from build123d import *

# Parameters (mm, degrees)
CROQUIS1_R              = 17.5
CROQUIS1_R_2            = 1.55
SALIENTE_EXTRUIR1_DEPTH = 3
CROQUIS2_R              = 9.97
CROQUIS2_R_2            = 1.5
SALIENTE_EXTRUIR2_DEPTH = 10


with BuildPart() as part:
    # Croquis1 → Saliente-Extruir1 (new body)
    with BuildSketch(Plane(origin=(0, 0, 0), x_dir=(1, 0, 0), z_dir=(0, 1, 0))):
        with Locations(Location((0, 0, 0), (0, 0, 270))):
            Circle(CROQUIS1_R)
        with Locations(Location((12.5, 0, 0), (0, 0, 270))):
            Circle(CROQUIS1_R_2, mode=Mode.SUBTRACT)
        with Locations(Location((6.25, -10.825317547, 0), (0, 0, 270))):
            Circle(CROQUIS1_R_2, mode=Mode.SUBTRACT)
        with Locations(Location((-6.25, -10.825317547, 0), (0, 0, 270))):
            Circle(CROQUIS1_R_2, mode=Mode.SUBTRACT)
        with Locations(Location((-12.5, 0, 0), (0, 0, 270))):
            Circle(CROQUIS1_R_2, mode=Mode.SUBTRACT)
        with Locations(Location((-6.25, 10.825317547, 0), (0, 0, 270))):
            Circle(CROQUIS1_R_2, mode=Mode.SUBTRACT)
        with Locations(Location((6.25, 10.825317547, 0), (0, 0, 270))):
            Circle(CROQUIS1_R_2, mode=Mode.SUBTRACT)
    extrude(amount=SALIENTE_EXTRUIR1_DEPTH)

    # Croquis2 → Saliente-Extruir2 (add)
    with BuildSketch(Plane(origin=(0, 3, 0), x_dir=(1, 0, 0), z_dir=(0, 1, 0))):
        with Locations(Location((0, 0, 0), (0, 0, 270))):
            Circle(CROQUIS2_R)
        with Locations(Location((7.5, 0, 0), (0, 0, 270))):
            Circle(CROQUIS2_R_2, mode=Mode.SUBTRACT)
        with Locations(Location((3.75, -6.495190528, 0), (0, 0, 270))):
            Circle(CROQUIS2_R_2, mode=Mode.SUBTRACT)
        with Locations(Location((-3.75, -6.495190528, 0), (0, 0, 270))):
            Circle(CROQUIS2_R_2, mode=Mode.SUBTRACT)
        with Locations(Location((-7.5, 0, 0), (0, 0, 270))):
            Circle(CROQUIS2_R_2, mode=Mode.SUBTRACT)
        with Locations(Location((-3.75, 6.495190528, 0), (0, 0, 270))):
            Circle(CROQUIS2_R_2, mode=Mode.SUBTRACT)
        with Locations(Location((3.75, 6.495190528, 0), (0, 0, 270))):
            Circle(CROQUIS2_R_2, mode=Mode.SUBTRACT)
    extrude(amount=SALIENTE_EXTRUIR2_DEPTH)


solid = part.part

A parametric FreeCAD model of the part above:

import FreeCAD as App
import Part
import Sketcher
Q = App.Units.Quantity

doc = App.newDocument("Part")
body = doc.addObject("PartDesign::Body", "Body")

# Sketch on XZ plane
sketch1 = body.newObject("Sketcher::SketchObject", "Sketch")
sketch1.AttachmentSupport = (doc.getObject("XZ_Plane"), [""])
sketch1.MapMode = "FlatFace"
sketch1.addGeometry([
    Part.Circle(App.Vector(0, 0, 0), App.Vector(0, 0, 1), 17.5),  # 0
    Part.Circle(App.Vector(-6.2, -10.8, 0), App.Vector(0, 0, 1), 1.6),  # 1
    Part.Circle(App.Vector(-12.5, 0, 0), App.Vector(0, 0, 1), 1.6),  # 2
    Part.Circle(App.Vector(-6.2, 10.8, 0), App.Vector(0, 0, 1), 1.6),  # 3
    Part.Circle(App.Vector(6.2, -10.8, 0), App.Vector(0, 0, 1), 1.6),  # 4
    Part.Circle(App.Vector(12.5, 0, 0), App.Vector(0, 0, 1), 1.6),  # 5
    Part.Circle(App.Vector(6.2, 10.8, 0), App.Vector(0, 0, 1), 1.6),  # 6
], False)
sketch1.addConstraint([
    Sketcher.Constraint("Coincident", 0, 3, -1, 1),
    Sketcher.Constraint("Equal", 1, 2),
    Sketcher.Constraint("Equal", 2, 3),
    Sketcher.Constraint("Equal", 3, 4),
    Sketcher.Constraint("Equal", 4, 5),
    Sketcher.Constraint("Equal", 5, 6),
    Sketcher.Constraint("Symmetric", 3, 3, 4, 3, -1, 1),
    Sketcher.Constraint("Symmetric", 2, 3, 5, 3, -1, 1),
    Sketcher.Constraint("Symmetric", 1, 3, 6, 3, -1, 1),
    Sketcher.Constraint("Symmetric", 1, 3, 4, 3, -2),
    Sketcher.Constraint("PointOnObject", 2, 3, -1),
    Sketcher.Constraint("Diameter", 0, Q("35 mm")),
    Sketcher.Constraint("Diameter", 1, Q("3.1 mm")),
    Sketcher.Constraint("DistanceX", 2, 3, 5, 3, Q("25 mm")),
    Sketcher.Constraint("DistanceX", 1, 3, 4, 3, Q("12.5 mm")),
    Sketcher.Constraint("DistanceY", 1, 3, -1, 1, Q("10.825318 mm")),
])
pad1 = body.newObject("PartDesign::Pad", "Pad")
pad1.Profile = sketch1
pad1.Length = 3
pad1.Reversed = True

# Sketch on XZ plane
sketch2 = body.newObject("Sketcher::SketchObject", "Sketch001")
sketch2.AttachmentSupport = (doc.getObject("XZ_Plane"), [""])
sketch2.MapMode = "FlatFace"
sketch2.AttachmentOffset = App.Placement(App.Vector(0, 0, -3), App.Rotation())
sketch2.addGeometry([
    Part.Circle(App.Vector(0, 0, 0), App.Vector(0, 0, 1), 10),  # 0
    Part.Circle(App.Vector(-3.8, -6.5, 0), App.Vector(0, 0, 1), 1.5),  # 1
    Part.Circle(App.Vector(-7.5, 0, 0), App.Vector(0, 0, 1), 1.5),  # 2
    Part.Circle(App.Vector(-3.8, 6.5, 0), App.Vector(0, 0, 1), 1.5),  # 3
    Part.Circle(App.Vector(3.8, -6.5, 0), App.Vector(0, 0, 1), 1.5),  # 4
    Part.Circle(App.Vector(7.5, 0, 0), App.Vector(0, 0, 1), 1.5),  # 5
    Part.Circle(App.Vector(3.8, 6.5, 0), App.Vector(0, 0, 1), 1.5),  # 6
], False)
sketch2.addConstraint([
    Sketcher.Constraint("Coincident", 0, 3, -1, 1),
    Sketcher.Constraint("Equal", 1, 2),
    Sketcher.Constraint("Equal", 2, 3),
    Sketcher.Constraint("Equal", 3, 4),
    Sketcher.Constraint("Equal", 4, 5),
    Sketcher.Constraint("Equal", 5, 6),
    Sketcher.Constraint("Symmetric", 3, 3, 4, 3, -1, 1),
    Sketcher.Constraint("Symmetric", 2, 3, 5, 3, -1, 1),
    Sketcher.Constraint("Symmetric", 1, 3, 6, 3, -1, 1),
    Sketcher.Constraint("Symmetric", 1, 3, 4, 3, -2),
    Sketcher.Constraint("PointOnObject", 2, 3, -1),
    Sketcher.Constraint("Diameter", 1, Q("3 mm")),
    Sketcher.Constraint("Diameter", 0, Q("19.94 mm")),
    Sketcher.Constraint("DistanceX", 2, 3, 5, 3, Q("15 mm")),
    Sketcher.Constraint("DistanceX", 1, 3, 4, 3, Q("7.5 mm")),
    Sketcher.Constraint("DistanceY", 1, 3, -1, 1, Q("6.495191 mm")),
])
pad2 = body.newObject("PartDesign::Pad", "Pad001")
pad2.Profile = sketch2
pad2.Length = 10
pad2.Reversed = True

doc.recompute()
